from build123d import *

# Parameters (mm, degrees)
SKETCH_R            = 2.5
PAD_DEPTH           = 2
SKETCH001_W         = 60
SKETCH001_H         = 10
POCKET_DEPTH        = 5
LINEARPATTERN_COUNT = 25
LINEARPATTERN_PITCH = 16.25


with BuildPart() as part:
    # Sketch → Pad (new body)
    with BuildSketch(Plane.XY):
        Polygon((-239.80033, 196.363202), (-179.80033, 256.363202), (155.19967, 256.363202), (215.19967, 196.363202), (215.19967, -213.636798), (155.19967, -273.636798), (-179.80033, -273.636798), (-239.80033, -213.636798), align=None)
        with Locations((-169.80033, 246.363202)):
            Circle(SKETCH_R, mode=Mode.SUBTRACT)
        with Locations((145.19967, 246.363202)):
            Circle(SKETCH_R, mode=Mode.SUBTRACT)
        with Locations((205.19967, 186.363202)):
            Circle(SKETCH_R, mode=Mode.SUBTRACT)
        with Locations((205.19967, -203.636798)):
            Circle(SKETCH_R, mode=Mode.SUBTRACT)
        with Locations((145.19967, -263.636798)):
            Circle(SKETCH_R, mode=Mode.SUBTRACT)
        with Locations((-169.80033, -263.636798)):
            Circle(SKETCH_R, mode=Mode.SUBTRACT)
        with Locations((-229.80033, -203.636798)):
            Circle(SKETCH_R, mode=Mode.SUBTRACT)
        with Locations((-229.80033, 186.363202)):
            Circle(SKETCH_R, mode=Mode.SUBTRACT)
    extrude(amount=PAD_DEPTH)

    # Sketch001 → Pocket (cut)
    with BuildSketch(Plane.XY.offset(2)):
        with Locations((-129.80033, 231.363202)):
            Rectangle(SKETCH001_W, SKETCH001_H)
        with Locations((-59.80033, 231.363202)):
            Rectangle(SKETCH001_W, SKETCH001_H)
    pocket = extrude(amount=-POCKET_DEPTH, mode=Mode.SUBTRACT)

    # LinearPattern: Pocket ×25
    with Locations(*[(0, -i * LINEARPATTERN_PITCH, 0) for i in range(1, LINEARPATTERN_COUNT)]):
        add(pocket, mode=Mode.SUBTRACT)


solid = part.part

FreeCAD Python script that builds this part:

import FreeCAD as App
import Part
import Sketcher
from FreeCAD import Vector
Q = App.Units.Quantity


def add_polygon(sketch, points):
    """Adds a closed chain of lines whose ends are joined by coincident constraints."""
    first, n = sketch.GeometryCount, len(points)
    for a, b in zip(points, points[1:] + points[:1]):
        sketch.addGeometry(Part.LineSegment(App.Vector(*a, 0), App.Vector(*b, 0)), False)
    for i in range(n):
        sketch.addConstraint(Sketcher.Constraint("Coincident", first + i, 2, first + (i + 1) % n, 1))

doc = App.newDocument("Part")
body = doc.addObject("PartDesign::Body", "Body")

sketch1 = body.newObject("Sketcher::SketchObject", "Sketch")
sketch1.AttachmentSupport = (doc.getObject("XY_Plane"), [""])
sketch1.MapMode = "FlatFace"
add_polygon(sketch1, [(-179.8, 256.4), (-239.8, 196.4), (-239.8, -213.6), (-179.8, -273.6), (155.2, -273.6), (215.2, -213.6), (215.2, 196.4), (155.2, 256.4)])
sketch1.addGeometry(Part.Circle(Vector(205.2, -203.6, 0), Vector(0, 0, 1), 2.5), False)
sketch1.addGeometry(Part.Circle(Vector(145.2, -263.6, 0), Vector(0, 0, 1), 2.5), False)
sketch1.addGeometry(Part.Circle(Vector(-169.8, -263.6, 0), Vector(0, 0, 1), 2.5), False)
sketch1.addGeometry(Part.Circle(Vector(-229.8, -203.6, 0), Vector(0, 0, 1), 2.5), False)
sketch1.addGeometry(Part.Circle(Vector(205.2, 186.4, 0), Vector(0, 0, 1), 2.5), False)
sketch1.addGeometry(Part.Circle(Vector(145.2, 246.4, 0), Vector(0, 0, 1), 2.5), False)
sketch1.addGeometry(Part.Circle(Vector(-169.8, 246.4, 0), Vector(0, 0, 1), 2.5), False)
sketch1.addGeometry(Part.Circle(Vector(-229.8, 186.4, 0), Vector(0, 0, 1), 2.5), False)
sketch1.addConstraint([
    Sketcher.Constraint("Vertical", 1),
    Sketcher.Constraint("Horizontal", 3),
    Sketcher.Constraint("Vertical", 5),
    Sketcher.Constraint("Horizontal", 7),
    Sketcher.Constraint("Equal", 8, 9),
    Sketcher.Constraint("Equal", 9, 10),
    Sketcher.Constraint("Equal", 10, 11),
    Sketcher.Constraint("Equal", 11, 12),
    Sketcher.Constraint("Equal", 12, 13),
    Sketcher.Constraint("Equal", 13, 14),
    Sketcher.Constraint("Equal", 14, 15),
    Sketcher.Constraint("Perpendicular", 0, 2),
    Sketcher.Constraint("Perpendicular", 2, 4),
    Sketcher.Constraint("Perpendicular", 4, 6),
    Sketcher.Constraint("Horizontal", 9, 3, 10, 3),
    Sketcher.Constraint("Horizontal", 8, 3, 11, 3),
    Sketcher.Constraint("Horizontal", 13, 3, 14, 3),
    Sketcher.Constraint("Horizontal", 12, 3, 15, 3),
    Sketcher.Constraint("Horizontal", 1, 2, 4, 2),
    Sketcher.Constraint("Horizontal", 0, 2, 5, 2),
    Sketcher.Constraint("Vertical", 8, 3, 12, 3),
    Sketcher.Constraint("Vertical", 9, 3, 13, 3),
    Sketcher.Constraint("Vertical", 10, 3, 14, 3),
    Sketcher.Constraint("Vertical", 11, 3, 15, 3),
    Sketcher.Constraint("Vertical", 3, 2, 6, 2),
    Sketcher.Constraint("Vertical", 2, 2, 7, 2),
    Sketcher.Constraint("Diameter", 8, Q("5 mm")),
    Sketcher.Constraint("DistanceX", 3, 1, 3, 2, Q("335 mm")),
    Sketcher.Constraint("DistanceY", 1, 2, 1, 1, Q("410 mm")),
    Sketcher.Constraint("DistanceX", 9, 3, 8, 3, Q("60 mm")),
    Sketcher.Constraint("DistanceY", 9, 3, 8, 3, Q("60 mm")),
    Sketcher.Constraint("DistanceX", 10, 3, 9, 3, Q("315 mm")),
    Sketcher.Constraint("DistanceX", 11, 3, 10, 3, Q("60 mm")),
    Sketcher.Constraint("DistanceY", 8, 3, 12, 3, Q("390 mm")),
    Sketcher.Constraint("DistanceY", 12, 3, 13, 3, Q("60 mm")),
    Sketcher.Constraint("DistanceX", 0, 2, 15, 3, Q("10 mm")),
    Sketcher.Constraint("DistanceY", 15, 3, 0, 2, Q("10 mm")),
    Sketcher.Constraint("DistanceX", 2, 2, 10, 3, Q("10 mm")),
    Sketcher.Constraint("DistanceY", 8, 3, -1, 1, Q("203.636798 mm")),
    Sketcher.Constraint("DistanceX", -1, 1, 8, 3, Q("205.19967 mm")),
])
pad1 = body.newObject("PartDesign::Pad", "Pad")
pad1.Profile = sketch1
pad1.Length = 2

sketch2 = body.newObject("Sketcher::SketchObject", "Sketch001")
sketch2.AttachmentSupport = (doc.getObject("XY_Plane"), [""])
sketch2.MapMode = "FlatFace"
sketch2.AttachmentOffset = App.Placement(Vector(0, 0, 2), App.Rotation())
add_polygon(sketch2, [(-160, 236), (-160, 226), (-100, 226), (-100, 236)])
add_polygon(sketch2, [(-90, 236), (-90, 226), (-30, 226), (-30, 236)])
sketch2.addConstraint([
    Sketcher.Constraint("Vertical", 0),
    Sketcher.Constraint("Horizontal", 1),
    Sketcher.Constraint("Vertical", 2),
    Sketcher.Constraint("Horizontal", 3),
    Sketcher.Constraint("Vertical", 4),
    Sketcher.Constraint("Horizontal", 5),
    Sketcher.Constraint("Vertical", 6),
    Sketcher.Constraint("Horizontal", 7),
    Sketcher.Constraint("Horizontal", 1, 2, 4, 2),
    Sketcher.Constraint("Horizontal", 3, 2, 6, 2),
    Sketcher.Constraint("Equal", 3, 5),
    Sketcher.Constraint("DistanceX", 1, 1, 1, 2, Q("60 mm")),
    Sketcher.Constraint("DistanceY", 0, 2, 0, 1, Q("10 mm")),
    Sketcher.Constraint("DistanceX", 1, 2, 4, 2, Q("10 mm")),
    Sketcher.Constraint("DistanceY", -1, 1, 0, 2, Q("226.363202 mm")),
    Sketcher.Constraint("DistanceX", 0, 2, -1, 1, Q("159.80033 mm")),
])
pocket1 = body.newObject("PartDesign::Pocket", "Pocket")
pocket1.Profile = sketch2
pocket1.Length = 5
doc.recompute()

linearpattern = body.newObject("PartDesign::LinearPattern", "LinearPattern")
linearpattern.Originals = [pocket1]
linearpattern.Direction = (doc.getObject("Y_Axis"), [""])
linearpattern.Mode = "offset"
linearpattern.Offset = 16.25
linearpattern.Occurrences = 25
linearpattern.Reversed = True
body.Tip = linearpattern

doc.recompute()
